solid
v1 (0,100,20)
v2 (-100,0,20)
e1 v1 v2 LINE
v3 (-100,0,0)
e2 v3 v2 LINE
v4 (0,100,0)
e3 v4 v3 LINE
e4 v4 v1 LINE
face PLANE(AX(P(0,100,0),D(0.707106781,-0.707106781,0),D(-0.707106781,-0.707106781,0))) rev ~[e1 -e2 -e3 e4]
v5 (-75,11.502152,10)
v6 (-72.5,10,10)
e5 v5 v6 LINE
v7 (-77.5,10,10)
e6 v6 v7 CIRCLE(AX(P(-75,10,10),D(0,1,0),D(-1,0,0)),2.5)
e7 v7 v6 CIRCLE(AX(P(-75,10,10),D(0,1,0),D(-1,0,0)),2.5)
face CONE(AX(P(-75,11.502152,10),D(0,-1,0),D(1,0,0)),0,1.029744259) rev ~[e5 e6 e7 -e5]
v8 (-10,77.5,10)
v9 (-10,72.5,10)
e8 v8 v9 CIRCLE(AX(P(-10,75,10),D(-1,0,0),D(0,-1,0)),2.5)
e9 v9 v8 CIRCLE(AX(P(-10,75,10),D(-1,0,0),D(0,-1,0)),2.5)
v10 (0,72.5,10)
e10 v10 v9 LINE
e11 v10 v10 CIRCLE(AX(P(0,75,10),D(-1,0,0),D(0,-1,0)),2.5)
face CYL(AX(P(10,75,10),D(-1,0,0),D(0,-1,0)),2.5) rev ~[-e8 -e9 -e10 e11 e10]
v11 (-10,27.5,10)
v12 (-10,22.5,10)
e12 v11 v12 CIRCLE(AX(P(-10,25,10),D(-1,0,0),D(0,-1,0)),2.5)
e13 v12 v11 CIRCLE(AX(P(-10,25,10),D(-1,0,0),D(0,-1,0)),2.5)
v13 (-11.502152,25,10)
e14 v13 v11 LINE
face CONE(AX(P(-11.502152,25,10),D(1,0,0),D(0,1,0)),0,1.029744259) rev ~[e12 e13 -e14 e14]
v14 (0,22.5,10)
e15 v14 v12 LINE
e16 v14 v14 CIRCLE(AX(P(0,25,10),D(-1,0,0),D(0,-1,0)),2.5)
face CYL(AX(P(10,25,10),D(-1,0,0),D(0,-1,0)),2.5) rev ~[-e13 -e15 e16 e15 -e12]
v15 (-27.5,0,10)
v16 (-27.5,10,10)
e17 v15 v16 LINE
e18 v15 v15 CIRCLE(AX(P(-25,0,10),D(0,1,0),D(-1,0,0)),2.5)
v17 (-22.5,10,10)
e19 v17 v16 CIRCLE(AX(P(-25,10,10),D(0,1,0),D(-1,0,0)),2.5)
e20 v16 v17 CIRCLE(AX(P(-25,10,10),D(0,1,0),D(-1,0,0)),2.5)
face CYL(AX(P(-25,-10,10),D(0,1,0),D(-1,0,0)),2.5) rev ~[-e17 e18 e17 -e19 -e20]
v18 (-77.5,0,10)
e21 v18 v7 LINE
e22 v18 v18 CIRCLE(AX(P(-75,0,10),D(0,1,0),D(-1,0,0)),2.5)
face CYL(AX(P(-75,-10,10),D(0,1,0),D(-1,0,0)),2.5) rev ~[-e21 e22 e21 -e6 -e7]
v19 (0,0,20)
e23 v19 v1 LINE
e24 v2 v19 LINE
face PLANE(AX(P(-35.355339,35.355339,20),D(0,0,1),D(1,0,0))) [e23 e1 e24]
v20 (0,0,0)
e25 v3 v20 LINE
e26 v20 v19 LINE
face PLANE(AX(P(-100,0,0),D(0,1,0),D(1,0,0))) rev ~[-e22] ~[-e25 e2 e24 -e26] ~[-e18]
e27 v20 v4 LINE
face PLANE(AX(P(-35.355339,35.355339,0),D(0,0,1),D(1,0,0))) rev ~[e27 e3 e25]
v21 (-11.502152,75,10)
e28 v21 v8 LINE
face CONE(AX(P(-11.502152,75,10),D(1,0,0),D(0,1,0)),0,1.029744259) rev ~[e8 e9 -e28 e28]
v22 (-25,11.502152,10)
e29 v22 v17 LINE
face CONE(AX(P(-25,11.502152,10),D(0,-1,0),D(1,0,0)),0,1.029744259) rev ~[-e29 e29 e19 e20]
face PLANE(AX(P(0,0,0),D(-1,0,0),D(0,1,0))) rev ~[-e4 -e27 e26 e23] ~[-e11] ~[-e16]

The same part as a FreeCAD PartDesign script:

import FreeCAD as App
import Part
import Sketcher

V = App.Vector
Q = App.Units.Quantity

doc = App.newDocument("Part")
body = doc.addObject("PartDesign::Body", "Body")

# Sketch on XY plane
sketch1 = body.newObject("Sketcher::SketchObject", "Sketch")
sketch1.AttachmentSupport = (doc.getObject("XY_Plane"), [""])
sketch1.MapMode = "FlatFace"
sketch1.addGeometry([
    Part.LineSegment(V(-100, 0, 0), V(0, 0, 0)),
    Part.LineSegment(V(0, 0, 0), V(0, 100, 0)),
    Part.LineSegment(V(0, 100, 0), V(-100, 0, 0)),
], False)
sketch1.addConstraint([
    Sketcher.Constraint("Coincident", 0, 2, 1, 1),
    Sketcher.Constraint("Coincident", 1, 2, 2, 1),
    Sketcher.Constraint("Coincident", 2, 2, 0, 1),
    Sketcher.Constraint("Horizontal", 0),
    Sketcher.Constraint("Vertical", 1),
    Sketcher.Constraint("Coincident", 0, 2, -1, 1),
    Sketcher.Constraint("Equal", 0, 1),
    Sketcher.Constraint("DistanceX", 0, 1, 0, 2, Q("100 mm")),
])
pad1 = body.newObject("PartDesign::Pad", "Pad")
pad1.Profile = sketch1
pad1.Length = 20

# Sketch on YZ plane
sketch2 = body.newObject("Sketcher::SketchObject", "Sketch001")
sketch2.AttachmentSupport = (doc.getObject("YZ_Plane"), [""])
sketch2.MapMode = "FlatFace"
sketch2.addGeometry([
    Part.Circle(V(75, 10, 0), V(0, 0, 1), 2.5),
    Part.Circle(V(25, 10, 0), V(0, 0, 1), 2.5),
], False)
sketch2.addConstraint([
    Sketcher.Constraint("Equal", 0, 1),
    Sketcher.Constraint("Horizontal", 0, 3, 1, 3),
    Sketcher.Constraint("Diameter", 0, Q("5 mm")),
    Sketcher.Constraint("DistanceX", -1, 1, 0, 3, Q("75 mm")),
    Sketcher.Constraint("DistanceY", -1, 1, 0, 3, Q("10 mm")),
    Sketcher.Constraint("DistanceX", -1, 1, 1, 3, Q("25 mm")),
])
doc.recompute()
hole = body.newObject("PartDesign::Hole", "Hole")
hole.Profile = sketch2
hole.ThreadType = "None"
hole.Diameter = 5
hole.DepthType = "Dimension"
hole.Depth = 10
hole.DrillPoint = "Angled"
hole.DrillPointAngle = 118

# Sketch on XZ plane
sketch3 = body.newObject("Sketcher::SketchObject", "Sketch002")
sketch3.AttachmentSupport = (doc.getObject("XZ_Plane"), [""])
sketch3.MapMode = "FlatFace"
sketch3.addGeometry([
    Part.Circle(V(-25, 10, 0), V(0, 0, 1), 2.5),
    Part.Circle(V(-75, 10, 0), V(0, 0, 1), 2.5),
], False)
sketch3.addConstraint([
    Sketcher.Constraint("Equal", 0, 1),
    Sketcher.Constraint("Horizontal", 0, 3, 1, 3),
    Sketcher.Constraint("Diameter", 0, Q("5 mm")),
    Sketcher.Constraint("DistanceX", 0, 3, -1, 1, Q("25 mm")),
    Sketcher.Constraint("DistanceY", -1, 1, 0, 3, Q("10 mm")),
    Sketcher.Constraint("DistanceX", 1, 3, -1, 1, Q("75 mm")),
])
doc.recompute()
hole2 = body.newObject("PartDesign::Hole", "Hole001")
hole2.Profile = sketch3
hole2.ThreadType = "None"
hole2.Diameter = 5
hole2.DepthType = "Dimension"
hole2.Depth = 10
hole2.DrillPoint = "Angled"
hole2.DrillPointAngle = 118

doc.recompute()
